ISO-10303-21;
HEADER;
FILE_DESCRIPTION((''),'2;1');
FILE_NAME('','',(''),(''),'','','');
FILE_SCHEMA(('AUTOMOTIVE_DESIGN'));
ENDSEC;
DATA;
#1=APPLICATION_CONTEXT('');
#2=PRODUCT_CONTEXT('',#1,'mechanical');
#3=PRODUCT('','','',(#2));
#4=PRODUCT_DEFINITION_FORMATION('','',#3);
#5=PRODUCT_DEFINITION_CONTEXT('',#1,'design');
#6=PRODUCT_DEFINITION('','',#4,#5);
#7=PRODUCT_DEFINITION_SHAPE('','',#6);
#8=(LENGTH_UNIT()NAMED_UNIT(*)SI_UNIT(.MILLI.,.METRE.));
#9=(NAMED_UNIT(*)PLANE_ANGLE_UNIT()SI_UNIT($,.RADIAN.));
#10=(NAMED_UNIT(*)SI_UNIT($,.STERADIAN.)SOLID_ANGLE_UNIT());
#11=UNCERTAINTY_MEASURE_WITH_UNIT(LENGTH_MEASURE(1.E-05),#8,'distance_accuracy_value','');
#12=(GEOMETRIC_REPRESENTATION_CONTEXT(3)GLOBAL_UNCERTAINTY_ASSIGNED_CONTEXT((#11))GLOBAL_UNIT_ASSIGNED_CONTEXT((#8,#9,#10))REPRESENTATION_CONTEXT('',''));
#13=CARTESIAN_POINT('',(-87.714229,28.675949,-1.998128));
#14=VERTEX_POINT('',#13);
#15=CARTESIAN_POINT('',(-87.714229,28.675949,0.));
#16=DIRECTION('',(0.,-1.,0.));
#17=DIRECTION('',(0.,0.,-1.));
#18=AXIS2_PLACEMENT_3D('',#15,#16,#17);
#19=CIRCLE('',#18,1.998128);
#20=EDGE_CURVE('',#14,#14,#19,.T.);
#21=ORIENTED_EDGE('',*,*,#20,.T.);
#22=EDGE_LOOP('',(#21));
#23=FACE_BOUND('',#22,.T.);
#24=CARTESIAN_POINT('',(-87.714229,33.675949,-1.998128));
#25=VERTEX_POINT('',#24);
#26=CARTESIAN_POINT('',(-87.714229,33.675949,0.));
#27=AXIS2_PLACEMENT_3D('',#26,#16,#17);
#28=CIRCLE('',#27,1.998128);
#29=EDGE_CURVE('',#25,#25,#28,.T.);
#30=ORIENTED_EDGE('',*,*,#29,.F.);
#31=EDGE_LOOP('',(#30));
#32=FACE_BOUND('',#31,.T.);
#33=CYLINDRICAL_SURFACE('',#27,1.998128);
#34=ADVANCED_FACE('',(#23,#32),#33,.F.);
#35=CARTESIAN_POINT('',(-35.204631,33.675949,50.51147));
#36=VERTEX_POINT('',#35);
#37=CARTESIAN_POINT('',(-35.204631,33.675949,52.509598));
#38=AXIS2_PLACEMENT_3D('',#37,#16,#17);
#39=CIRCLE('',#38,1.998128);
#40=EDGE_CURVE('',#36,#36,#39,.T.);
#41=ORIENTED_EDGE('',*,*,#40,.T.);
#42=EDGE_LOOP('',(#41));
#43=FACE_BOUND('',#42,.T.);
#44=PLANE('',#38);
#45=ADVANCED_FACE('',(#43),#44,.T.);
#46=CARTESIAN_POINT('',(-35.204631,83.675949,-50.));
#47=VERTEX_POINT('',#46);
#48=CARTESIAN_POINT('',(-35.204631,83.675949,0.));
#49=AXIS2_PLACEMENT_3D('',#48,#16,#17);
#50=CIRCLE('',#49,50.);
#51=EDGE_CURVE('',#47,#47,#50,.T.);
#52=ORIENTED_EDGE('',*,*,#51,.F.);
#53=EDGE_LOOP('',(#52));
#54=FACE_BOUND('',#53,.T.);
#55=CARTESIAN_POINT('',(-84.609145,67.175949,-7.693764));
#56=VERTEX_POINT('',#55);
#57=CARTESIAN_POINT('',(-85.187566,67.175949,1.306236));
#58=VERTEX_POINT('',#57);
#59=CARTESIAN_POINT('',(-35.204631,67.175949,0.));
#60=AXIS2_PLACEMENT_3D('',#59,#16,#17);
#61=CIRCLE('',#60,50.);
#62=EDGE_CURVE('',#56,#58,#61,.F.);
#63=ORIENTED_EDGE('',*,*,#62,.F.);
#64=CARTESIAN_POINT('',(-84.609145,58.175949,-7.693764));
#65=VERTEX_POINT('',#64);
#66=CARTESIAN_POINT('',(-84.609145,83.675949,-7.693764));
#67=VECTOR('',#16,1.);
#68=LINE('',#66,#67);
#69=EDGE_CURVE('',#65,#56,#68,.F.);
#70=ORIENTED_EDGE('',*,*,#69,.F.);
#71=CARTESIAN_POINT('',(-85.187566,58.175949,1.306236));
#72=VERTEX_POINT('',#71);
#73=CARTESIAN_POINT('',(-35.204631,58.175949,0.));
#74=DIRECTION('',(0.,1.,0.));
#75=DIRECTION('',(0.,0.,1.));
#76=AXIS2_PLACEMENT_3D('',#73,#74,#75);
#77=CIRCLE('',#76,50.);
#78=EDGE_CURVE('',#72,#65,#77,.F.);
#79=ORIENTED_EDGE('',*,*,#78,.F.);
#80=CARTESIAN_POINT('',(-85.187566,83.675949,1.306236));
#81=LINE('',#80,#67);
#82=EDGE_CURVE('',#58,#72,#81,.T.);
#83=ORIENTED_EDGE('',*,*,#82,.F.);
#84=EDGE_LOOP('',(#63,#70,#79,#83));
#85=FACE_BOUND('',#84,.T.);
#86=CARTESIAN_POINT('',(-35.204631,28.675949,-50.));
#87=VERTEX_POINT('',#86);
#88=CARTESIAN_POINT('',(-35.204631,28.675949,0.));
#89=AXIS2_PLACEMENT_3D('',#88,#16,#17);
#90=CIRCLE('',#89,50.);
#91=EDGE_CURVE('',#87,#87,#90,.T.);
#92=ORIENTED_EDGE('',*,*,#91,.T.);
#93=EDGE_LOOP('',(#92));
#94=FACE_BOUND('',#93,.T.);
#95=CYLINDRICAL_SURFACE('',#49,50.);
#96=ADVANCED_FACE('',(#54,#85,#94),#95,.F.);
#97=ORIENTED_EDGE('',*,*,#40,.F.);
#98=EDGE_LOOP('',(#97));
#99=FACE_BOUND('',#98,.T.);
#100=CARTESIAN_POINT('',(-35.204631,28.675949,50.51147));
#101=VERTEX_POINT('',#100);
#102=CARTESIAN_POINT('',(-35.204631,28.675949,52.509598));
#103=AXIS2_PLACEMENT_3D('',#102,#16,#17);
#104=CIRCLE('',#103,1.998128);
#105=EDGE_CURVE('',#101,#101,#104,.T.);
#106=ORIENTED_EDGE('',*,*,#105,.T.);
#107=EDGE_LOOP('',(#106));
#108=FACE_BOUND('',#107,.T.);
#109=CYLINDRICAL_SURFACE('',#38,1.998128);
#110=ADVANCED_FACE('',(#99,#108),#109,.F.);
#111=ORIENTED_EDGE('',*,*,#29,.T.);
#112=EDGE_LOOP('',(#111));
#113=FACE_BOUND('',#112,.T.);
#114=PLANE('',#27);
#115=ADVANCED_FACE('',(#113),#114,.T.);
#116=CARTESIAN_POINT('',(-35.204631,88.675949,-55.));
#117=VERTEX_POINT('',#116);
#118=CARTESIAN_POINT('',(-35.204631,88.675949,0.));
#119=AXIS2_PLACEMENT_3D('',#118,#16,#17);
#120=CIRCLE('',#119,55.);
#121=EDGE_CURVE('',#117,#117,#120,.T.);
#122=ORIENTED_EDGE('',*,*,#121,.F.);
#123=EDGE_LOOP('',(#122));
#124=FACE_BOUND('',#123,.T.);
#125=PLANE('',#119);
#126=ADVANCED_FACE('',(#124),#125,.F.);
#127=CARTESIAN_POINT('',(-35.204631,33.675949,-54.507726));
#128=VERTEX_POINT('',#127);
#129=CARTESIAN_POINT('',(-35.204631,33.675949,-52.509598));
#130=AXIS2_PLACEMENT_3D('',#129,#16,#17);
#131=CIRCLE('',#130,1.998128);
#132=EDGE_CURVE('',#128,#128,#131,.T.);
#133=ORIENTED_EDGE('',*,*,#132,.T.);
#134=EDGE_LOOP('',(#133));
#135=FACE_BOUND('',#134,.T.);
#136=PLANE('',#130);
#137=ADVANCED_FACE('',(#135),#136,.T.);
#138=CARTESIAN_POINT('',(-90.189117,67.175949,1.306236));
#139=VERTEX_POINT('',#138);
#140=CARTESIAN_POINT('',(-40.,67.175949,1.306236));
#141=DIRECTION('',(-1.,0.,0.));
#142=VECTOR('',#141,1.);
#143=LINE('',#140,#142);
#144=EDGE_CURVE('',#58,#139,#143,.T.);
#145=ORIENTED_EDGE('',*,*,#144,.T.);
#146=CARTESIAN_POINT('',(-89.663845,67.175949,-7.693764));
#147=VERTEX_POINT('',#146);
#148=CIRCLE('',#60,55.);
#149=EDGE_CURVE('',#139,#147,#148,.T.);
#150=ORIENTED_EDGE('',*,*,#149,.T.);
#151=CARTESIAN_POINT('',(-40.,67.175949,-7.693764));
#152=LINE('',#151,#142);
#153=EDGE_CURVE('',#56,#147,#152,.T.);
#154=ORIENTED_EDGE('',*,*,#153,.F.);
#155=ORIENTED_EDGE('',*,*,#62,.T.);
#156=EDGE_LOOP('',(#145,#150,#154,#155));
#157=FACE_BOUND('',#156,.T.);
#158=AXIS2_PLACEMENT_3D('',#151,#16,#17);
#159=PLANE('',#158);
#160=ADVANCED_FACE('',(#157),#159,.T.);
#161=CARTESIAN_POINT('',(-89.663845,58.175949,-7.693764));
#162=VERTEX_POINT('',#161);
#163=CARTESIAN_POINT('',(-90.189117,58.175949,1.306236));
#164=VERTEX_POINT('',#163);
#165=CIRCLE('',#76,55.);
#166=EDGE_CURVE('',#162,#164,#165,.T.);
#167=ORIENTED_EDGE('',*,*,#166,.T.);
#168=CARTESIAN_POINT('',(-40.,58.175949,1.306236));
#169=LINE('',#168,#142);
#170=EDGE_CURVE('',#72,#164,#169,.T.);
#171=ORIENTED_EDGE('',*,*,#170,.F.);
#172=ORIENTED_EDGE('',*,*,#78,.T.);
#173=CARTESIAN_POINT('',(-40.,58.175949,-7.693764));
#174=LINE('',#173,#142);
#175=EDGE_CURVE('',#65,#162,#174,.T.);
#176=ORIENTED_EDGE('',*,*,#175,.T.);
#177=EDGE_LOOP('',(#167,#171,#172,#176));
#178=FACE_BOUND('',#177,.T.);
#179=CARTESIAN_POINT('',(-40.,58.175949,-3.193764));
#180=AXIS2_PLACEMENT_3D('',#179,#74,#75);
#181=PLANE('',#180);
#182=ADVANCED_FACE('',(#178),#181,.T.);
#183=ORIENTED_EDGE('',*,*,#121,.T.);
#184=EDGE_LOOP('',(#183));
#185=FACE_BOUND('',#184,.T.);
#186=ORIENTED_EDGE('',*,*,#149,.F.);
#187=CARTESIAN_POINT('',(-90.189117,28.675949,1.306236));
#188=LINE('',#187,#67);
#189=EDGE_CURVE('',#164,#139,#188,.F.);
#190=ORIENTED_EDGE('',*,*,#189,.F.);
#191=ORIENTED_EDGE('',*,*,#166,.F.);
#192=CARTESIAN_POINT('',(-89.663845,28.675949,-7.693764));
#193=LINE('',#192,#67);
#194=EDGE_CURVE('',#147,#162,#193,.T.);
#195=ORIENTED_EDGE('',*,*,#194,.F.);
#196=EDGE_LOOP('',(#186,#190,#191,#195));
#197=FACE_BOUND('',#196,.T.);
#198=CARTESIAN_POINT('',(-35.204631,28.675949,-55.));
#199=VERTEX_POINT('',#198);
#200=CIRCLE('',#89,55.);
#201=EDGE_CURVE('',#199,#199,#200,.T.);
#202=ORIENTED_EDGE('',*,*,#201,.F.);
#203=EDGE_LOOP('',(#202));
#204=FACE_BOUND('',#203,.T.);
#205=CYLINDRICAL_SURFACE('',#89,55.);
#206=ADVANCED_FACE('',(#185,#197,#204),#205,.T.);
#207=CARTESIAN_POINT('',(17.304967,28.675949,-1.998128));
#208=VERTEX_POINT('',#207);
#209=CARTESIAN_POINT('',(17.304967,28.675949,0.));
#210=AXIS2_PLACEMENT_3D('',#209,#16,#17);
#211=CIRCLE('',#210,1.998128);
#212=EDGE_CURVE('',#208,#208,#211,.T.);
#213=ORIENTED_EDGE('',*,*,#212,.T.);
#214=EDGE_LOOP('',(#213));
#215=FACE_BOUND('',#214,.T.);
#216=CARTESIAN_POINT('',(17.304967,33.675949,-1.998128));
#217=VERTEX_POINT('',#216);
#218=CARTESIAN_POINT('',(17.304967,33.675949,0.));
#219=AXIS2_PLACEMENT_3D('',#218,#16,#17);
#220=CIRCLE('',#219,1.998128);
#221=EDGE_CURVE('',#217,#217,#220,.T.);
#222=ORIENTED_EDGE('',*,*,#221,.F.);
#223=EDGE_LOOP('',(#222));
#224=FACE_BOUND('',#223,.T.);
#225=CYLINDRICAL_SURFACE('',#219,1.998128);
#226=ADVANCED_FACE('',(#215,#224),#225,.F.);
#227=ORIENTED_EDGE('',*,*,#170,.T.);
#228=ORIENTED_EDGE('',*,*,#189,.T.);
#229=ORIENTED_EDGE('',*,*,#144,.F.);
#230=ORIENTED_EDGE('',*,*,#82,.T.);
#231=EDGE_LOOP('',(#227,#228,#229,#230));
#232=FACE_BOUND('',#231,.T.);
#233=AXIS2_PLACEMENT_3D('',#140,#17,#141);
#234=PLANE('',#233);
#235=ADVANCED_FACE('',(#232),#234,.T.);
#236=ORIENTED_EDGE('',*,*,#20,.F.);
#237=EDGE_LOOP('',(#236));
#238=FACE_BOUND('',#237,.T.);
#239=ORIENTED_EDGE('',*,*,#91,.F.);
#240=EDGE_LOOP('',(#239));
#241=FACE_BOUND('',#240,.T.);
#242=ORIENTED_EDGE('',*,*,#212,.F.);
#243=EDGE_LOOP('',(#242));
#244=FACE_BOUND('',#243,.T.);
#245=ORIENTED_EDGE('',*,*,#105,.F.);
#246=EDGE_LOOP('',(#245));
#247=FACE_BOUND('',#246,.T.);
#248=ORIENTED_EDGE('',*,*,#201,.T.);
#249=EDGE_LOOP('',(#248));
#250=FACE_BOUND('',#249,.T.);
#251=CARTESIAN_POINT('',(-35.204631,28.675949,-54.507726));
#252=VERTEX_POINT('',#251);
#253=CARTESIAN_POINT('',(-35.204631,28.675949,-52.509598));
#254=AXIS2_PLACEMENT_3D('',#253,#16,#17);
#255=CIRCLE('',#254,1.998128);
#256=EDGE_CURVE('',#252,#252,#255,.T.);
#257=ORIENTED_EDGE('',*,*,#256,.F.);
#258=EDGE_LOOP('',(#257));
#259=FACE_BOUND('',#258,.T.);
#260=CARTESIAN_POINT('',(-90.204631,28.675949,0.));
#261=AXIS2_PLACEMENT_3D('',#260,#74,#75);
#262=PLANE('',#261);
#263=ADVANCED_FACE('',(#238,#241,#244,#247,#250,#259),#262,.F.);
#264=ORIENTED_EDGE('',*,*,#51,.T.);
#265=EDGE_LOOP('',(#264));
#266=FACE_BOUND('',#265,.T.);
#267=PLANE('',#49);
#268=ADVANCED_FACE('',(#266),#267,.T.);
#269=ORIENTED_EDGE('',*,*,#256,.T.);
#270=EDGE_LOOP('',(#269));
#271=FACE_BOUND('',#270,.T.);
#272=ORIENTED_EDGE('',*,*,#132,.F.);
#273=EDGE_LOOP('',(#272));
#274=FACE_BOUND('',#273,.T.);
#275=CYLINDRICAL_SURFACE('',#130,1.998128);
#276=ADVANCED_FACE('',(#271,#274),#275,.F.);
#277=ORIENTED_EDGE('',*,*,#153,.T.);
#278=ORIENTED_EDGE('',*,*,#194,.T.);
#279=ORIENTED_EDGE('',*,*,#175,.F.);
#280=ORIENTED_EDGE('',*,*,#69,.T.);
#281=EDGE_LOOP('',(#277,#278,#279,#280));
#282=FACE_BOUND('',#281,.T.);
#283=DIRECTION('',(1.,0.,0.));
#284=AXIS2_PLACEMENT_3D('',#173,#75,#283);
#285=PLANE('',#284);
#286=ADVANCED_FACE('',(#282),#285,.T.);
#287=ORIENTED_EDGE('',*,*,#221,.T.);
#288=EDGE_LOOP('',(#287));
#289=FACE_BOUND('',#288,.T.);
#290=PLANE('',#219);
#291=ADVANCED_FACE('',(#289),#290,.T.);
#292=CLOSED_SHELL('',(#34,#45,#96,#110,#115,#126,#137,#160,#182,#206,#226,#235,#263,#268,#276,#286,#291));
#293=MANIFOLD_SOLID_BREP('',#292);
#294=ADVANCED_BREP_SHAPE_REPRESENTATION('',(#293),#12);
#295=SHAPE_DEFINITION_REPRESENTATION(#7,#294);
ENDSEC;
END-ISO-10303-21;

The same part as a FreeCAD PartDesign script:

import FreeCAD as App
import Part
import Sketcher
from FreeCAD import Vector
Q = App.Units.Quantity

doc = App.newDocument("Part")
body = doc.addObject("PartDesign::Body", "Body")

# Sketch on XY plane
sketch1 = body.newObject("Sketcher::SketchObject", "Sketch")
sketch1.AttachmentSupport = (doc.getObject("XY_Plane"), [""])
sketch1.MapMode = "FlatFace"
sketch1.addGeometry([
    Part.LineSegment(Vector(-90.204631, 88.675949, 0), Vector(-90.204631, 28.675949, 0)),
    Part.LineSegment(Vector(-90.204631, 28.675949, 0), Vector(-35.204631, 28.675949, 0)),
    Part.LineSegment(Vector(-35.204631, 28.675949, 0), Vector(-35.204631, 88.675949, 0)),
    Part.LineSegment(Vector(-35.204631, 88.675949, 0), Vector(-90.204631, 88.675949, 0)),
], False)
sketch1.addGeometry(Part.LineSegment(Vector(-35.204631, 28.675949, 0), Vector(-35.204631, 88.675949, 0)), True)  # axis
sketch1.addConstraint([
    Sketcher.Constraint("Coincident", 0, 2, 1, 1),
    Sketcher.Constraint("Coincident", 1, 2, 2, 1),
    Sketcher.Constraint("Coincident", 2, 2, 3, 1),
    Sketcher.Constraint("Coincident", 3, 2, 0, 1),
    Sketcher.Constraint("Vertical", 0),
    Sketcher.Constraint("Horizontal", 1),
    Sketcher.Constraint("Vertical", 2),
    Sketcher.Constraint("Horizontal", 3),
    Sketcher.Constraint("Vertical", 4),
    Sketcher.Constraint("Coincident", 4, 1, 1, 2),
    Sketcher.Constraint("Horizontal", 3, 2, 4, 2),
    Sketcher.Constraint("DistanceX", 1, 1, 1, 2, Q("55 mm")),
    Sketcher.Constraint("DistanceY", 0, 2, 0, 1, Q("60 mm")),
    Sketcher.Constraint("DistanceX", 0, 2, -1, 1, Q("90.204631 mm")),
    Sketcher.Constraint("DistanceY", -1, 1, 0, 2, Q("28.675949 mm")),
])
revolution = body.newObject("PartDesign::Revolution", "Revolution")
revolution.Profile = sketch1
revolution.ReferenceAxis = (sketch1, ["Axis0"])
revolution.Angle = 360

# Sketch on XZ plane
sketch2 = body.newObject("Sketcher::SketchObject", "Sketch001")
sketch2.AttachmentSupport = (doc.getObject("XZ_Plane"), [""])
sketch2.MapMode = "FlatFace"
sketch2.AttachmentOffset = App.Placement(Vector(0, 0, -28.675949), App.Rotation())
sketch2.addGeometry(Part.Circle(Vector(-35.204631, 0, 0), Vector(0, 0, 1), 50), False)
sketch2.addConstraint([
    Sketcher.Constraint("PointOnObject", 0, 3, -1),
    Sketcher.Constraint("Diameter", 0, Q("100 mm")),
    Sketcher.Constraint("DistanceX", 0, 3, -1, 1, Q("35.204631 mm")),
])
pocket1 = body.newObject("PartDesign::Pocket", "Pocket")
pocket1.Profile = sketch2
pocket1.Length = 55

# Sketch on YZ plane
sketch3 = body.newObject("Sketcher::SketchObject", "Sketch002")
sketch3.AttachmentSupport = (doc.getObject("YZ_Plane"), [""])
sketch3.MapMode = "FlatFace"
sketch3.AttachmentOffset = App.Placement(Vector(0, 0, -95), App.Rotation())
sketch3.addGeometry([
    Part.LineSegment(Vector(58.175949, -7.693764, 0), Vector(67.175949, -7.693764, 0)),
    Part.LineSegment(Vector(67.175949, -7.693764, 0), Vector(67.175949, 1.306236, 0)),
    Part.LineSegment(Vector(67.175949, 1.306236, 0), Vector(58.175949, 1.306236, 0)),
    Part.LineSegment(Vector(58.175949, 1.306236, 0), Vector(58.175949, -7.693764, 0)),
], False)
sketch3.addConstraint([
    Sketcher.Constraint("Coincident", 0, 2, 1, 1),
    Sketcher.Constraint("Coincident", 1, 2, 2, 1),
    Sketcher.Constraint("Coincident", 2, 2, 3, 1),
    Sketcher.Constraint("Coincident", 3, 2, 0, 1),
    Sketcher.Constraint("Horizontal", 0),
    Sketcher.Constraint("Vertical", 1),
    Sketcher.Constraint("Horizontal", 2),
    Sketcher.Constraint("Vertical", 3),
    Sketcher.Constraint("Equal", 2, 1),
    Sketcher.Constraint("DistanceX", 0, 1, 0, 2, Q("9 mm")),
    Sketcher.Constraint("DistanceX", -1, 1, 0, 2, Q("67.175949 mm")),
    Sketcher.Constraint("DistanceY", 0, 2, -1, 1, Q("7.693764 mm")),
])
pocket2 = body.newObject("PartDesign::Pocket", "Pocket001")
pocket2.Profile = sketch3
pocket2.Length = 55
pocket2.Reversed = True

# Sketch on XZ plane
sketch4 = body.newObject("Sketcher::SketchObject", "Sketch003")
sketch4.AttachmentSupport = (doc.getObject("XZ_Plane"), [""])
sketch4.MapMode = "FlatFace"
sketch4.AttachmentOffset = App.Placement(Vector(0, 0, -28.675949), App.Rotation())
sketch4.addGeometry([
    Part.Circle(Vector(-35.204631, 52.509598, 0), Vector(0, 0, 1), 1.998128),
    Part.Circle(Vector(17.304967, 0, 0), Vector(0, 0, 1), 1.998128),
    Part.Circle(Vector(-35.204631, -52.509598, 0), Vector(0, 0, 1), 1.998128),
    Part.Circle(Vector(-87.714229, 0, 0), Vector(0, 0, 1), 1.998128),
], False)
sketch4.addConstraint([
    Sketcher.Constraint("Equal", 0, 1),
    Sketcher.Constraint("Equal", 1, 2),
    Sketcher.Constraint("Equal", 2, 3),
    Sketcher.Constraint("Symmetric", 0, 3, 2, 3, -1),
    Sketcher.Constraint("PointOnObject", 1, 3, -1),
    Sketcher.Constraint("PointOnObject", 3, 3, -1),
    Sketcher.Constraint("Diameter", 0, Q("3.996256 mm")),
    Sketcher.Constraint("DistanceX", 0, 3, -1, 1, Q("35.204631 mm")),
    Sketcher.Constraint("DistanceX", 3, 3, -1, 1, Q("87.714229 mm")),
    Sketcher.Constraint("DistanceY", -1, 1, 0, 3, Q("52.509598 mm")),
    Sketcher.Constraint("DistanceX", -1, 1, 1, 3, Q("17.304967 mm")),
])
pocket3 = body.newObject("PartDesign::Pocket", "Pocket002")
pocket3.Profile = sketch4
pocket3.Length = 5

doc.recompute()
